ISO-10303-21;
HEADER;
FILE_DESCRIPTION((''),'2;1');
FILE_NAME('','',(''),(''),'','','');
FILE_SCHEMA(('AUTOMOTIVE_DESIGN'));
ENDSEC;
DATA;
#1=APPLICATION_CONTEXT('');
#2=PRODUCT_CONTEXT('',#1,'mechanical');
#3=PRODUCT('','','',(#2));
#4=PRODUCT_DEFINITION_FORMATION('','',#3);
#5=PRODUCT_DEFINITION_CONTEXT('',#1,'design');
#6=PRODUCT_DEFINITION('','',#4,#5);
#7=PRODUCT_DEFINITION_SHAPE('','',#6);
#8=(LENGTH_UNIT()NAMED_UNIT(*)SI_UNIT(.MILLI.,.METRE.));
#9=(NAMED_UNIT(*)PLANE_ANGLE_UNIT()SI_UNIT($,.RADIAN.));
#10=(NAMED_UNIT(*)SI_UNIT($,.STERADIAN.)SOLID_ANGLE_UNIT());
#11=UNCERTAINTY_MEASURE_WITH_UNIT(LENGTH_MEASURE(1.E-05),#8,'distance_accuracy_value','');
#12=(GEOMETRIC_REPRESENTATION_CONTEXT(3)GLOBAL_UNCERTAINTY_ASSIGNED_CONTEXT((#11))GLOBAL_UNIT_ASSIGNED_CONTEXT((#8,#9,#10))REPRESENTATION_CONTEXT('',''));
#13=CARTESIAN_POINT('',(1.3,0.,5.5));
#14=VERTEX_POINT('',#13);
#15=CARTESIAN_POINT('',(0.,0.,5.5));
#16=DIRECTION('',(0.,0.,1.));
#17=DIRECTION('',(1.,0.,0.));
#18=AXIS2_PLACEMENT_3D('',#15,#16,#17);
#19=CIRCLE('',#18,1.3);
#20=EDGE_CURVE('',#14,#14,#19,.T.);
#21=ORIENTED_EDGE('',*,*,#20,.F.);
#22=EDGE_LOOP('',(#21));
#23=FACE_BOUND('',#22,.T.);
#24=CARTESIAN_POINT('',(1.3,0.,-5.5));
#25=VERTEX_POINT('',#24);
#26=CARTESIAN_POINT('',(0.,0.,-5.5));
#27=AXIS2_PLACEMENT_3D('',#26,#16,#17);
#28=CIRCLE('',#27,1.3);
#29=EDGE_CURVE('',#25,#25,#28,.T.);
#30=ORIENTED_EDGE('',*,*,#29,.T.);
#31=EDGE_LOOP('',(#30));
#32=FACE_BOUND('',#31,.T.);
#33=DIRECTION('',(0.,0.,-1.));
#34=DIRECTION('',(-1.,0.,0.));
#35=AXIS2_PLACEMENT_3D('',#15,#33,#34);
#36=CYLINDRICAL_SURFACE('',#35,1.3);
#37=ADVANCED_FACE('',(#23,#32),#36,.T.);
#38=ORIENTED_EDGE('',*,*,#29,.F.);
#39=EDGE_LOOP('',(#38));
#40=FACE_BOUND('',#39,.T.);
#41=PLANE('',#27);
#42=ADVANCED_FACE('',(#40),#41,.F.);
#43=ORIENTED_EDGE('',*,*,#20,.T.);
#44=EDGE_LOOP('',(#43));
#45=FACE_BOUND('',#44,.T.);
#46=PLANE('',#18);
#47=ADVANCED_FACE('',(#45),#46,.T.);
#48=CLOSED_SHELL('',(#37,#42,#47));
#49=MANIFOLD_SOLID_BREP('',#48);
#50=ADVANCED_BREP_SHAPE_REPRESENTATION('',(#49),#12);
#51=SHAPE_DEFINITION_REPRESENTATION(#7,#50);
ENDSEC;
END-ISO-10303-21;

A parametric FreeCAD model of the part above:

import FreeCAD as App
import Part
import Sketcher

doc = App.newDocument("Part")
body = doc.addObject("PartDesign::Body", "Body")

# Sketch on XY plane
sketch1 = doc.addObject("Sketcher::SketchObject", "Sketch")
body.addObject(sketch1)
sketch1.AttachmentSupport = (doc.XY_Plane, [""])
sketch1.MapMode = "FlatFace"
sketch1.addGeometry(Part.Circle(App.Vector(0, 0, 0), App.Vector(0, 0, 1), 1.3), False)
sketch1.addConstraint([
    Sketcher.Constraint("Coincident", 0, 3, -1, 1),
    Sketcher.Constraint("Diameter", 0, 2.6),
])
pad1 = doc.addObject("PartDesign::Pad", "Pad")
body.addObject(pad1)
pad1.Profile = sketch1
pad1.Length = 11
pad1.Midplane = True

doc.recompute()
